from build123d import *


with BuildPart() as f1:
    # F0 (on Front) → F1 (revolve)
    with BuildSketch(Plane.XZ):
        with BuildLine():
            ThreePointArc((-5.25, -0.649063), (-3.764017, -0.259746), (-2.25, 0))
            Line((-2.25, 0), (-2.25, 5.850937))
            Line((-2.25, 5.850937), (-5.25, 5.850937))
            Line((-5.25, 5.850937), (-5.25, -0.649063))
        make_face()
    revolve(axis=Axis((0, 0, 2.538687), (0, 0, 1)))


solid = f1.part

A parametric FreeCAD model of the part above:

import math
import FreeCAD as App
import Part
import Sketcher

V = App.Vector
Q = App.Units.Quantity

doc = App.newDocument("Part")
params = doc.addObject("Spreadsheet::Sheet", "Params")
for row, (alias, value) in enumerate([
    ("sketch1_width", "3 mm"),
    ("sketch1_height", "6.5 mm"),
    ("revolution_angle", "360 deg"),
], start=1):
    params.set(f"A{row}", alias)
    params.set(f"B{row}", "=" + value)
    params.setAlias(f"B{row}", alias)

body = doc.addObject("PartDesign::Body", "Body")

sketch1 = doc.addObject("Sketcher::SketchObject", "Sketch")
body.addObject(sketch1)
sketch1.AttachmentSupport = (doc.XZ_Plane, [""])
sketch1.MapMode = "FlatFace"
sketch1.addGeometry(Part.ArcOfCircle(Part.Circle(V(0, -17.7, 0), V(0, 0, 1), 17.8), math.radians(97.26), math.radians(107.15)), False)
sketch1.addGeometry(Part.LineSegment(V(-2.2, 0, 0), V(-2.2, 5.9, 0)), False)
sketch1.addGeometry(Part.LineSegment(V(-2.2, 5.9, 0), V(-5.2, 5.9, 0)), False)
sketch1.addGeometry(Part.LineSegment(V(-5.2, 5.9, 0), V(-5.2, -0.6, 0)), False)
sketch1.addConstraint(Sketcher.Constraint("Coincident", 0, 1, 1, 1))
sketch1.addConstraint(Sketcher.Constraint("Coincident", 1, 2, 2, 1))
sketch1.addConstraint(Sketcher.Constraint("Coincident", 2, 2, 3, 1))
sketch1.addConstraint(Sketcher.Constraint("Coincident", 3, 2, 0, 2))
sketch1.addConstraint(Sketcher.Constraint("Vertical", 1))
sketch1.addConstraint(Sketcher.Constraint("Horizontal", 2))
sketch1.addConstraint(Sketcher.Constraint("Vertical", 3))
sketch1.addConstraint(Sketcher.Constraint("PointOnObject", 0, 1, -1))
sketch1.addConstraint(Sketcher.Constraint("DistanceX", 2, 2, 2, 1, Q("3 mm")))
sketch1.addConstraint(Sketcher.Constraint("DistanceY", 3, 2, 3, 1, Q("6.5 mm")))
sketch1.addConstraint(Sketcher.Constraint("DistanceX", 0, 1, -1, 1, Q("2.25 mm")))
sketch1.addConstraint(Sketcher.Constraint("Radius", 0, Q("17.799891 mm")))
sketch1.addConstraint(Sketcher.Constraint("DistanceY", 1, 1, 1, 2, Q("5.850937 mm")))
sketch1.setExpression("Constraints[8]", "Params.sketch1_width")
sketch1.setExpression("Constraints[9]", "Params.sketch1_height")
revolution = doc.addObject("PartDesign::Revolution", "Revolution")
body.addObject(revolution)
revolution.Profile = sketch1
revolution.ReferenceAxis = (sketch1, ["V_Axis"])
revolution.setExpression("Angle", "Params.revolution_angle")

doc.recompute()
